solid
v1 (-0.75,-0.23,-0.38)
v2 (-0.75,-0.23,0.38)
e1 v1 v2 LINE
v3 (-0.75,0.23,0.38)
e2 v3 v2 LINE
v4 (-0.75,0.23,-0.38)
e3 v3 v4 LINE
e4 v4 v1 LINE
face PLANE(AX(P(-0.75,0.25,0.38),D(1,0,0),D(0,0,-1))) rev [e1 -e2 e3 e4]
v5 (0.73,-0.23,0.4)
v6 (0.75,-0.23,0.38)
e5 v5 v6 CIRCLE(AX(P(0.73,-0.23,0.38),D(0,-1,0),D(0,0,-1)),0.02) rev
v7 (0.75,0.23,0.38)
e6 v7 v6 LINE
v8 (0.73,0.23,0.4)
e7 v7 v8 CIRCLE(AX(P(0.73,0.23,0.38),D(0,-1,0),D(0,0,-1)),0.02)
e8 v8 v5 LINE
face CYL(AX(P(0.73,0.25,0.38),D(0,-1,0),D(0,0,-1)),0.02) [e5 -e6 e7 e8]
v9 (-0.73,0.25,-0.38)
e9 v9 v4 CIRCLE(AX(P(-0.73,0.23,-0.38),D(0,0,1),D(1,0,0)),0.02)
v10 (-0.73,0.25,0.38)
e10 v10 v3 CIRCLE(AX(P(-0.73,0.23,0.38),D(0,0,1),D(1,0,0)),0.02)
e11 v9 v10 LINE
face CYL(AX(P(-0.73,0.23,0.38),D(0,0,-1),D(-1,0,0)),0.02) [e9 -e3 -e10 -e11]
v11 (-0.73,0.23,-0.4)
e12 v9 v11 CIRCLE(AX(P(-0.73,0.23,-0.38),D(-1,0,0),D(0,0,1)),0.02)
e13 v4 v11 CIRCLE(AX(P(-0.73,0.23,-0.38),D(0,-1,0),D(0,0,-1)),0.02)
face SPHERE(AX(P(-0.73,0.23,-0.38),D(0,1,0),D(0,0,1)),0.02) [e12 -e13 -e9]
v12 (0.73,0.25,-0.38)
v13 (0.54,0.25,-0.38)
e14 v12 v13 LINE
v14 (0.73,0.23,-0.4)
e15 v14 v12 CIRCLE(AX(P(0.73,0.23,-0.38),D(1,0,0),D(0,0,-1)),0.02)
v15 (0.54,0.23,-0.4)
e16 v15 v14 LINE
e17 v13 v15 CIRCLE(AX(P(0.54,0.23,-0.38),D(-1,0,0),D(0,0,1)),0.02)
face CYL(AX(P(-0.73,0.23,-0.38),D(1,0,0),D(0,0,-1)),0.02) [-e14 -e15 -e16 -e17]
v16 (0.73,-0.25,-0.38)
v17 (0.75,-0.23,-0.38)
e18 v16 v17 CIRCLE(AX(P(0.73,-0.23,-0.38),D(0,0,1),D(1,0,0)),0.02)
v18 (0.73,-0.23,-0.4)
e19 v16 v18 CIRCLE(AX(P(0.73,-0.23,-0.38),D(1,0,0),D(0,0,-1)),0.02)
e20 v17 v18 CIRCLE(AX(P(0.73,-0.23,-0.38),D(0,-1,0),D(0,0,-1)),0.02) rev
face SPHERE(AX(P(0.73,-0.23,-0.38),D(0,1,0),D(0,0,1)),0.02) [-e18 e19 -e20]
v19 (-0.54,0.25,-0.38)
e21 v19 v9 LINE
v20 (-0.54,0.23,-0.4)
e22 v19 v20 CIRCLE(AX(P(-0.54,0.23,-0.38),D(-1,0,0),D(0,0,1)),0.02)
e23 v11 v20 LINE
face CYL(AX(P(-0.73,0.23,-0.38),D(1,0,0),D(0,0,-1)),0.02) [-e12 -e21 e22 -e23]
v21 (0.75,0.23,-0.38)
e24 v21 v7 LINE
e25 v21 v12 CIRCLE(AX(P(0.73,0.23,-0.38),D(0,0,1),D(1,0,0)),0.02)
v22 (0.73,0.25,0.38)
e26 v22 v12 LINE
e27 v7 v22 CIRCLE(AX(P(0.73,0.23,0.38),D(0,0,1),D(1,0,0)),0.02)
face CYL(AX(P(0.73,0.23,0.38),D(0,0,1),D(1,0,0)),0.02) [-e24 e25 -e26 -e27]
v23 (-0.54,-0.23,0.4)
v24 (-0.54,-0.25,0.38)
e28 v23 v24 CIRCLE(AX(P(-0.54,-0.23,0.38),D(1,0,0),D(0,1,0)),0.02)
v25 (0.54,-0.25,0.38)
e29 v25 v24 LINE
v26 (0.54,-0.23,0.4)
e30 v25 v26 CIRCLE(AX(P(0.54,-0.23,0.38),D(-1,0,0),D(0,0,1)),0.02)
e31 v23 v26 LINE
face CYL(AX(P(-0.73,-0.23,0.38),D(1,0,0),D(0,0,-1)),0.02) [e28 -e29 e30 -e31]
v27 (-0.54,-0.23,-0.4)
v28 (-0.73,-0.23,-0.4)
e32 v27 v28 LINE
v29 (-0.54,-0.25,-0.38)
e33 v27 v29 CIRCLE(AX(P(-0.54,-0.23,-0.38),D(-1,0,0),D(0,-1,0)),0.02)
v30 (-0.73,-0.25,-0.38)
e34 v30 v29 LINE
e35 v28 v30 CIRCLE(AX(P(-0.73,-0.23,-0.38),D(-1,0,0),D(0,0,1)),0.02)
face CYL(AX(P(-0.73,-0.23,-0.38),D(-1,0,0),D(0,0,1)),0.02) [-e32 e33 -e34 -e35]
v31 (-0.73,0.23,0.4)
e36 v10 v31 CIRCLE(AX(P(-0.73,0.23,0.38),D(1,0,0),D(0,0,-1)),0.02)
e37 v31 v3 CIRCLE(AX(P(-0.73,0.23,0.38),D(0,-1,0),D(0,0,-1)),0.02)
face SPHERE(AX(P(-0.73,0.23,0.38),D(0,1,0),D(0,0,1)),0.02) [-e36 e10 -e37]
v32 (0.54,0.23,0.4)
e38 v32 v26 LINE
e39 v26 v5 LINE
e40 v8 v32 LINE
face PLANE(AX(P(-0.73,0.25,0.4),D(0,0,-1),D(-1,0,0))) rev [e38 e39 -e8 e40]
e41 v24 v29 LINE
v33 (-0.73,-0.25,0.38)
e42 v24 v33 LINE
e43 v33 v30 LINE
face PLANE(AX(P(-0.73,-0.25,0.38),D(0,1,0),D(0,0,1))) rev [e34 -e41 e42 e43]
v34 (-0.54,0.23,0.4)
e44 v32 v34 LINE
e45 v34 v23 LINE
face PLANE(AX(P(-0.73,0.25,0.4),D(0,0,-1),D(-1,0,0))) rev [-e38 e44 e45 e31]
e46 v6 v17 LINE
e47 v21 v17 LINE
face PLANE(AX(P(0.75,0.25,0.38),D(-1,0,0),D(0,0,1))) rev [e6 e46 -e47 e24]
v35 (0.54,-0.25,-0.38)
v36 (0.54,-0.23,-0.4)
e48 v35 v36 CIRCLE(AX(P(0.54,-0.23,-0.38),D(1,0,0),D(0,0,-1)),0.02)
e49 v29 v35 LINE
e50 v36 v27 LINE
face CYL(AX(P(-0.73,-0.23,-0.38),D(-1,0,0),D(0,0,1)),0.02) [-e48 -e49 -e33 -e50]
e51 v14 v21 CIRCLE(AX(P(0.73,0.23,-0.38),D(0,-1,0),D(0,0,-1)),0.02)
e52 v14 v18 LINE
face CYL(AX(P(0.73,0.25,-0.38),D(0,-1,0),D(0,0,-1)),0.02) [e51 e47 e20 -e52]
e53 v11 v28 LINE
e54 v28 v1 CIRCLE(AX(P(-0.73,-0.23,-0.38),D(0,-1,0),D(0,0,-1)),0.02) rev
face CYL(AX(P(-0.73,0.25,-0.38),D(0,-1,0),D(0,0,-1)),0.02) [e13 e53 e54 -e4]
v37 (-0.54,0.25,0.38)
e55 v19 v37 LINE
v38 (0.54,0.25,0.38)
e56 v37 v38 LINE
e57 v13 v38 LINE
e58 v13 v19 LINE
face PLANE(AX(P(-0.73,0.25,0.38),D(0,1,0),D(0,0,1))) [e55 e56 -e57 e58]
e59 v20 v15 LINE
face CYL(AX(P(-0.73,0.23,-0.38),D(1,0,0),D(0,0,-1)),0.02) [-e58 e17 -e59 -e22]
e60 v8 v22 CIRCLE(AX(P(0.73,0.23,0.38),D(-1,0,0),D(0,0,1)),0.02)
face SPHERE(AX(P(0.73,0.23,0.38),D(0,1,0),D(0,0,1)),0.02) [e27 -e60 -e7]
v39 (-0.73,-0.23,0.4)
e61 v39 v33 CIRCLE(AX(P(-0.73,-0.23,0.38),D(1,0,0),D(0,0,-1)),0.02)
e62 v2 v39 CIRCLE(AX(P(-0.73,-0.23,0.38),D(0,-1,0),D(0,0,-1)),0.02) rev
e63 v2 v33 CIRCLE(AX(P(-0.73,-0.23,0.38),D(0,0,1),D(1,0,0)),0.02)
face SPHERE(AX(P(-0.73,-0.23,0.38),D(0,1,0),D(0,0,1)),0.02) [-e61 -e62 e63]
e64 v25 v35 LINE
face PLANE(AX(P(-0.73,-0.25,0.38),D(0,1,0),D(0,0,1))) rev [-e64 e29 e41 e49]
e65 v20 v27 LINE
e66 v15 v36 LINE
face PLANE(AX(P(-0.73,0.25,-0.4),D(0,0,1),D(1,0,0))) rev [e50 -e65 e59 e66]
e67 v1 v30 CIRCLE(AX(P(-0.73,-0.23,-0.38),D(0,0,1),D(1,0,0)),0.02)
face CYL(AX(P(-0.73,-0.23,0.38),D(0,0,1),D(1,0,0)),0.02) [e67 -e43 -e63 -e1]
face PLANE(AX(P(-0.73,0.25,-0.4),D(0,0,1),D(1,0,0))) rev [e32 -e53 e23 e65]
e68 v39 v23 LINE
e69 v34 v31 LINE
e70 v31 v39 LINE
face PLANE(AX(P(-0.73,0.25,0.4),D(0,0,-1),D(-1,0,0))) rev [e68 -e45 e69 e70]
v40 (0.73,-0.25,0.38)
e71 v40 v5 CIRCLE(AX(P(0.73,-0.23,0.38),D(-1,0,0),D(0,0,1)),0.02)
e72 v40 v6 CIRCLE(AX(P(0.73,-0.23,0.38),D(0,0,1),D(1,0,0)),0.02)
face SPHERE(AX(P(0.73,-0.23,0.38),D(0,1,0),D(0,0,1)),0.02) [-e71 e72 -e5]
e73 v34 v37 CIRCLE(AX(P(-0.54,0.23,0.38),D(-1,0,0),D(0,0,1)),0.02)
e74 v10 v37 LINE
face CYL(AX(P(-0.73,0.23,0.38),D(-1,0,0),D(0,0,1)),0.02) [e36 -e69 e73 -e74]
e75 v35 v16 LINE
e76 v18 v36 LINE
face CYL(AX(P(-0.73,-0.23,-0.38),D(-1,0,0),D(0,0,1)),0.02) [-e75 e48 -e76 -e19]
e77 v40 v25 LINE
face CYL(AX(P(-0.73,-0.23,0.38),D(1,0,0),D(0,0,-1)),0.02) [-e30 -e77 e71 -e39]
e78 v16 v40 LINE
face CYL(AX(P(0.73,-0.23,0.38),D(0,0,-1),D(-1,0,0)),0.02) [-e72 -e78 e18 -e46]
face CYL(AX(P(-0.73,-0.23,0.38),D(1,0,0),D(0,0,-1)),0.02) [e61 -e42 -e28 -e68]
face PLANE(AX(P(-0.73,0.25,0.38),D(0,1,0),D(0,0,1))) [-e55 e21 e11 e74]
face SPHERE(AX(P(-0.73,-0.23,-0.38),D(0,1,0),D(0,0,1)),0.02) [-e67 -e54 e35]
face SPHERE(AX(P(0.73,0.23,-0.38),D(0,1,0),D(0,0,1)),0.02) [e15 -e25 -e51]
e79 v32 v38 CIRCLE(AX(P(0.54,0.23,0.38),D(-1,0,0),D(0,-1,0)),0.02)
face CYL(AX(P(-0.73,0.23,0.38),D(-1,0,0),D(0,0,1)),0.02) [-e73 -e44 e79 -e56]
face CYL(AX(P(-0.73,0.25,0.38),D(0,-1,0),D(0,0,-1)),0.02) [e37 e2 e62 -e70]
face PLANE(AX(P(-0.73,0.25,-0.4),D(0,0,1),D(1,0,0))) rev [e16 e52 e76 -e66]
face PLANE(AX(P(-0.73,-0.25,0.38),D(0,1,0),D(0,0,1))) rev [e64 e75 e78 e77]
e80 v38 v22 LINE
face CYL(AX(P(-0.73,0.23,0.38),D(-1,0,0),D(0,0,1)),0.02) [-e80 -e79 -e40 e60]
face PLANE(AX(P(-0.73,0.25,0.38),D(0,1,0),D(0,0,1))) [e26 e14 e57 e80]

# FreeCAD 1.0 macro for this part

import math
import FreeCAD as App
import Part
import Sketcher
from FreeCAD import Vector

doc = App.newDocument("Part")
params = doc.addObject("Spreadsheet::Sheet", "Params")
for row, (alias, value) in enumerate([
    ("sketch1_radius", "0.02 mm"),
    ("sketch1_width", "1.46 mm"),
    ("sketch1_height", "0.76 mm"),
    ("pad1_length", "0.5 mm"),
    ("fillet_radius", "0.02 mm"),
], start=1):
    params.set(f"A{row}", alias)
    params.set(f"B{row}", "=" + value)
    params.setAlias(f"B{row}", alias)

body = doc.addObject("PartDesign::Body", "Body")

sketch1 = body.newObject("Sketcher::SketchObject", "Sketch")
sketch1.AttachmentSupport = (doc.getObject("XZ_Plane"), [""])
sketch1.MapMode = "FlatFace"
sketch1.addGeometry(Part.LineSegment(Vector(-0.73, 0.4, 0), Vector(0.73, 0.4, 0)), False)
sketch1.addGeometry(Part.ArcOfCircle(Part.Circle(Vector(0.73, 0.38, 0), Vector(0, 0, 1), 0.02), math.radians(0), math.radians(90)), False)
sketch1.addGeometry(Part.LineSegment(Vector(0.75, 0.38, 0), Vector(0.75, -0.38, 0)), False)
sketch1.addGeometry(Part.ArcOfCircle(Part.Circle(Vector(0.73, -0.38, 0), Vector(0, 0, 1), 0.02), math.radians(-90), math.radians(0)), False)
sketch1.addGeometry(Part.LineSegment(Vector(0.73, -0.4, 0), Vector(-0.73, -0.4, 0)), False)
sketch1.addGeometry(Part.ArcOfCircle(Part.Circle(Vector(-0.73, -0.38, 0), Vector(0, 0, 1), 0.02), math.radians(180), math.radians(270)), False)
sketch1.addGeometry(Part.LineSegment(Vector(-0.75, -0.38, 0), Vector(-0.75, 0.38, 0)), False)
sketch1.addGeometry(Part.ArcOfCircle(Part.Circle(Vector(-0.73, 0.38, 0), Vector(0, 0, 1), 0.02), math.radians(90), math.radians(180)), False)
sketch1.addConstraint(Sketcher.Constraint("Tangent", 0, 2, 1, 2))
sketch1.addConstraint(Sketcher.Constraint("Tangent", 1, 1, 2, 1))
sketch1.addConstraint(Sketcher.Constraint("Tangent", 2, 2, 3, 2))
sketch1.addConstraint(Sketcher.Constraint("Tangent", 3, 1, 4, 1))
sketch1.addConstraint(Sketcher.Constraint("Tangent", 4, 2, 5, 2))
sketch1.addConstraint(Sketcher.Constraint("Tangent", 5, 1, 6, 1))
sketch1.addConstraint(Sketcher.Constraint("Tangent", 6, 2, 7, 2))
sketch1.addConstraint(Sketcher.Constraint("Tangent", 7, 1, 0, 1))
sketch1.addConstraint(Sketcher.Constraint("Horizontal", 0))
sketch1.addConstraint(Sketcher.Constraint("Vertical", 2))
sketch1.addConstraint(Sketcher.Constraint("Horizontal", 4))
sketch1.addConstraint(Sketcher.Constraint("Vertical", 6))
sketch1.addConstraint(Sketcher.Constraint("Equal", 1, 3))
sketch1.addConstraint(Sketcher.Constraint("Equal", 3, 5))
sketch1.addConstraint(Sketcher.Constraint("Equal", 5, 7))
sketch1.addConstraint(Sketcher.Constraint("Symmetric", 1, 3, 5, 3, -1, 1))
sketch1.addConstraint(Sketcher.Constraint("Radius", 1, 0.02))
sketch1.addConstraint(Sketcher.Constraint("DistanceX", 0, 1, 0, 2, 1.46))
sketch1.addConstraint(Sketcher.Constraint("DistanceY", 2, 2, 2, 1, 0.76))
sketch1.setExpression("Constraints[16]", "Params.sketch1_radius")
sketch1.setExpression("Constraints[17]", "Params.sketch1_width")
sketch1.setExpression("Constraints[18]", "Params.sketch1_height")
pad1 = body.newObject("PartDesign::Pad", "Pad")
pad1.Profile = sketch1
pad1.setExpression("Length", "Params.pad1_length")
pad1.Midplane = True
doc.recompute()

fillet = body.newObject("PartDesign::Fillet", "Fillet")
fillet.Base = (pad1, ["Edge1"])
fillet.UseAllEdges = True
fillet.setExpression("Radius", "Params.fillet_radius")

doc.recompute()
